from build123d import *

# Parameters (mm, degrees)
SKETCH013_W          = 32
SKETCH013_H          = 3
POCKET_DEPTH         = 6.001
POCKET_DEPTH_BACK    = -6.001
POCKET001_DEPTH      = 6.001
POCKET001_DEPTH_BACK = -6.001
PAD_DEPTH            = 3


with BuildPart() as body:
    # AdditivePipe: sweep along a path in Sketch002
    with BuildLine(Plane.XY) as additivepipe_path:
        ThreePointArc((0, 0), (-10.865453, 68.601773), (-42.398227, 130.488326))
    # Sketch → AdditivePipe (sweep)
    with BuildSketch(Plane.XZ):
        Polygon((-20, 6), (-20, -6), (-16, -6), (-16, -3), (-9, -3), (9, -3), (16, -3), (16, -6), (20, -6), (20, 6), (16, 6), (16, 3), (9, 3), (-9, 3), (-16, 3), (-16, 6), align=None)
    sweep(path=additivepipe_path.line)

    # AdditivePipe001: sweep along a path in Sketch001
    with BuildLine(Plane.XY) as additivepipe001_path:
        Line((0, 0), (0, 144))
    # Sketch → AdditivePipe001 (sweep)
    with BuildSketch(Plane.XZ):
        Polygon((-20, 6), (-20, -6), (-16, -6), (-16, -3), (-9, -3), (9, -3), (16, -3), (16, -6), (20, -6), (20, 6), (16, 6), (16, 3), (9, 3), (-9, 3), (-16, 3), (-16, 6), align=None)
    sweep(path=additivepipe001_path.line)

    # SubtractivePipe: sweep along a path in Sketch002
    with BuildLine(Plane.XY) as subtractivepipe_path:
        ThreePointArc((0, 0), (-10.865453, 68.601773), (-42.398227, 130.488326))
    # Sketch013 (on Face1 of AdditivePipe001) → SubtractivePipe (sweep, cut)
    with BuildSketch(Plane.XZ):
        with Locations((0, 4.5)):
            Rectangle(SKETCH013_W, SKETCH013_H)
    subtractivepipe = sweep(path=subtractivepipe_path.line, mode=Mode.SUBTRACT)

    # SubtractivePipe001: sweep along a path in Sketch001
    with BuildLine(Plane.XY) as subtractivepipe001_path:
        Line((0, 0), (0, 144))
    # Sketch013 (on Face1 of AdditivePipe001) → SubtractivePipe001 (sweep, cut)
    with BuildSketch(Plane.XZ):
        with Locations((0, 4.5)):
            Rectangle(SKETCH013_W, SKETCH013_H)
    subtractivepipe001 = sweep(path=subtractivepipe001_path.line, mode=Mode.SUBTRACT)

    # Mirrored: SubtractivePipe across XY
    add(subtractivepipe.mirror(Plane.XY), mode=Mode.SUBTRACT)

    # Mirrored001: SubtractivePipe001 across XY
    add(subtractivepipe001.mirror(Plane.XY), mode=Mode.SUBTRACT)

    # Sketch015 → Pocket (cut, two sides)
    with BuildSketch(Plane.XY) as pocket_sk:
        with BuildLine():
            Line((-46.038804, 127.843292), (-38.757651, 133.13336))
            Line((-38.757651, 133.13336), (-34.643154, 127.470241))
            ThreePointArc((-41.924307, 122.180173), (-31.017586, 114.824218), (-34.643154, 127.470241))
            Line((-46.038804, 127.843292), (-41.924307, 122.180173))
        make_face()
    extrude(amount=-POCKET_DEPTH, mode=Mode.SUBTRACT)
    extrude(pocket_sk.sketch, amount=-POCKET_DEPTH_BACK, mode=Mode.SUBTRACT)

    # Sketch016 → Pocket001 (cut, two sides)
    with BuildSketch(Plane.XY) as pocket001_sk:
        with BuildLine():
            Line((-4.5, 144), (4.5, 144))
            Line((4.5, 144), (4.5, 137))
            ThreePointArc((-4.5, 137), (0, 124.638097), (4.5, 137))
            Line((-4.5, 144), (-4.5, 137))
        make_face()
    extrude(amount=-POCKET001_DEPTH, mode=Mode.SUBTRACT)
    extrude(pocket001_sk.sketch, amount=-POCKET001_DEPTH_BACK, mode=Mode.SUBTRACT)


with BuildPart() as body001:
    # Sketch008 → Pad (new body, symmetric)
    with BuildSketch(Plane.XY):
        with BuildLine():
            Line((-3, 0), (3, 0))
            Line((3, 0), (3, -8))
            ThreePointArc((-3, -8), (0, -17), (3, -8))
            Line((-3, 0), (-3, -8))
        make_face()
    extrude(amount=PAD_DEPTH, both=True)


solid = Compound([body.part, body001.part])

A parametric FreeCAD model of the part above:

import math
import FreeCAD as App
import Part
import Sketcher
from FreeCAD import Vector
Q = App.Units.Quantity

doc = App.newDocument("Part")
params = doc.addObject("Spreadsheet::Sheet", "Params")
for row, (alias, value) in enumerate([
    ("sketch1_width", "4 mm"),
    ("sketch1_width2", "32 mm"),
    ("sketch1_height", "12 mm"),
    ("sketch1_height2", "3 mm"),
    ("sketch3_width", "4 mm"),
    ("sketch3_width2", "32 mm"),
    ("sketch3_height", "12 mm"),
    ("sketch3_height2", "3 mm"),
    ("sketch4_height", "144 mm"),
    ("sketch5_width", "32 mm"),
    ("sketch5_height", "3 mm"),
    ("sketch7_width", "32 mm"),
    ("sketch7_height", "3 mm"),
    ("sketch8_height", "144 mm"),
    ("sketch9_radius", "7 mm"),
    ("sketch9_length", "9 mm"),
    ("sketch9_length2", "7 mm"),
    ("sketch10_radius", "7 mm"),
    ("sketch10_width", "9 mm"),
    ("sketch10_height", "7 mm"),
    ("sketch11_radius", "5 mm"),
    ("sketch11_width", "6 mm"),
    ("sketch11_height", "8 mm"),
    ("pad1_length", "6 mm"),
], start=1):
    params.set(f"A{row}", alias)
    params.set(f"B{row}", "=" + value)
    params.setAlias(f"B{row}", alias)

body = doc.addObject("PartDesign::Body", "Body")

sketch1 = doc.addObject("Sketcher::SketchObject", "Sketch")
body.addObject(sketch1)
sketch1.AttachmentSupport = (doc.XZ_Plane, [""])
sketch1.MapMode = "FlatFace"
sketch1.addGeometry([
    Part.LineSegment(Vector(-20, 6, 0), Vector(-20, -6, 0)),
    Part.LineSegment(Vector(-20, -6, 0), Vector(-16, -6, 0)),
    Part.LineSegment(Vector(-16, -6, 0), Vector(-16, -3, 0)),
    Part.LineSegment(Vector(-16, -3, 0), Vector(16, -3, 0)),
    Part.LineSegment(Vector(16, -3, 0), Vector(16, -6, 0)),
    Part.LineSegment(Vector(16, -6, 0), Vector(20, -6, 0)),
    Part.LineSegment(Vector(20, -6, 0), Vector(20, 6, 0)),
    Part.LineSegment(Vector(20, 6, 0), Vector(16, 6, 0)),
    Part.LineSegment(Vector(16, 6, 0), Vector(16, 3, 0)),
    Part.LineSegment(Vector(16, 3, 0), Vector(-16, 3, 0)),
    Part.LineSegment(Vector(-16, 3, 0), Vector(-16, 6, 0)),
    Part.LineSegment(Vector(-16, 6, 0), Vector(-20, 6, 0)),
], False)
sketch1.addConstraint([
    Sketcher.Constraint("Coincident", 0, 2, 1, 1),
    Sketcher.Constraint("Coincident", 1, 2, 2, 1),
    Sketcher.Constraint("Coincident", 2, 2, 3, 1),
    Sketcher.Constraint("Coincident", 3, 2, 4, 1),
    Sketcher.Constraint("Coincident", 4, 2, 5, 1),
    Sketcher.Constraint("Coincident", 5, 2, 6, 1),
    Sketcher.Constraint("Coincident", 6, 2, 7, 1),
    Sketcher.Constraint("Coincident", 7, 2, 8, 1),
    Sketcher.Constraint("Coincident", 8, 2, 9, 1),
    Sketcher.Constraint("Coincident", 9, 2, 10, 1),
    Sketcher.Constraint("Coincident", 10, 2, 11, 1),
    Sketcher.Constraint("Coincident", 11, 2, 0, 1),
    Sketcher.Constraint("Vertical", 0),
    Sketcher.Constraint("Horizontal", 1),
    Sketcher.Constraint("Vertical", 2),
    Sketcher.Constraint("Horizontal", 3),
    Sketcher.Constraint("Vertical", 4),
    Sketcher.Constraint("Horizontal", 5),
    Sketcher.Constraint("Vertical", 6),
    Sketcher.Constraint("Horizontal", 7),
    Sketcher.Constraint("Vertical", 8),
    Sketcher.Constraint("Horizontal", 9),
    Sketcher.Constraint("Vertical", 10),
    Sketcher.Constraint("Horizontal", 11),
    Sketcher.Constraint("Symmetric", 0, 2, 6, 2, -1, 1),
    Sketcher.Constraint("Symmetric", 2, 2, 8, 2, -1, 1),
    Sketcher.Constraint("Symmetric", 4, 2, 10, 2, -1, 1),
    Sketcher.Constraint("Symmetric", 1, 2, 4, 2, -2),
    Sketcher.Constraint("DistanceX", 1, 1, 1, 2, 4.0),
    Sketcher.Constraint("DistanceX", 3, 1, 3, 2, 32.0),
    Sketcher.Constraint("DistanceY", 0, 2, 0, 1, 12.0),
    Sketcher.Constraint("DistanceY", 2, 1, 2, 2, 3.0),
])
sketch1.setExpression("Constraints[28]", "Params.sketch1_width")
sketch1.setExpression("Constraints[29]", "Params.sketch1_width2")
sketch1.setExpression("Constraints[30]", "Params.sketch1_height")
sketch1.setExpression("Constraints[31]", "Params.sketch1_height2")

sketch2 = doc.addObject("Sketcher::SketchObject", "Sketch001")
body.addObject(sketch2)
sketch2.AttachmentSupport = (doc.XY_Plane, [""])
sketch2.MapMode = "FlatFace"
sketch2.addGeometry(Part.ArcOfCircle(Part.Circle(Vector(-222, 0, 0), Vector(0, 0, 1), 222), math.radians(0), math.radians(36)), False)
sketch2.addConstraint([
    Sketcher.Constraint("Coincident", 0, 1, -1, 1),
    Sketcher.Constraint("Radius", 0, 221.999993),
    Sketcher.Constraint("DistanceX", 0, 2, -1, 1, 42.398227),
    Sketcher.Constraint("DistanceY", -1, 1, 0, 2, 130.488326),
])
doc.recompute()

additivepipe = doc.addObject("PartDesign::AdditivePipe", "AdditivePipe")
body.addObject(additivepipe)
additivepipe.Profile = sketch1
additivepipe.Spine = (sketch2, ["Edge1"])

sketch3 = doc.addObject("Sketcher::SketchObject", "Sketch002")
body.addObject(sketch3)
sketch3.AttachmentSupport = (doc.XZ_Plane, [""])
sketch3.MapMode = "FlatFace"
sketch3.addGeometry([
    Part.LineSegment(Vector(-20, 6, 0), Vector(-20, -6, 0)),
    Part.LineSegment(Vector(-20, -6, 0), Vector(-16, -6, 0)),
    Part.LineSegment(Vector(-16, -6, 0), Vector(-16, -3, 0)),
    Part.LineSegment(Vector(-16, -3, 0), Vector(16, -3, 0)),
    Part.LineSegment(Vector(16, -3, 0), Vector(16, -6, 0)),
    Part.LineSegment(Vector(16, -6, 0), Vector(20, -6, 0)),
    Part.LineSegment(Vector(20, -6, 0), Vector(20, 6, 0)),
    Part.LineSegment(Vector(20, 6, 0), Vector(16, 6, 0)),
    Part.LineSegment(Vector(16, 6, 0), Vector(16, 3, 0)),
    Part.LineSegment(Vector(16, 3, 0), Vector(-16, 3, 0)),
    Part.LineSegment(Vector(-16, 3, 0), Vector(-16, 6, 0)),
    Part.LineSegment(Vector(-16, 6, 0), Vector(-20, 6, 0)),
], False)
sketch3.addConstraint([
    Sketcher.Constraint("Coincident", 0, 2, 1, 1),
    Sketcher.Constraint("Coincident", 1, 2, 2, 1),
    Sketcher.Constraint("Coincident", 2, 2, 3, 1),
    Sketcher.Constraint("Coincident", 3, 2, 4, 1),
    Sketcher.Constraint("Coincident", 4, 2, 5, 1),
    Sketcher.Constraint("Coincident", 5, 2, 6, 1),
    Sketcher.Constraint("Coincident", 6, 2, 7, 1),
    Sketcher.Constraint("Coincident", 7, 2, 8, 1),
    Sketcher.Constraint("Coincident", 8, 2, 9, 1),
    Sketcher.Constraint("Coincident", 9, 2, 10, 1),
    Sketcher.Constraint("Coincident", 10, 2, 11, 1),
    Sketcher.Constraint("Coincident", 11, 2, 0, 1),
    Sketcher.Constraint("Vertical", 0),
    Sketcher.Constraint("Horizontal", 1),
    Sketcher.Constraint("Vertical", 2),
    Sketcher.Constraint("Horizontal", 3),
    Sketcher.Constraint("Vertical", 4),
    Sketcher.Constraint("Horizontal", 5),
    Sketcher.Constraint("Vertical", 6),
    Sketcher.Constraint("Horizontal", 7),
    Sketcher.Constraint("Vertical", 8),
    Sketcher.Constraint("Horizontal", 9),
    Sketcher.Constraint("Vertical", 10),
    Sketcher.Constraint("Horizontal", 11),
    Sketcher.Constraint("Symmetric", 0, 2, 6, 2, -1, 1),
    Sketcher.Constraint("Symmetric", 2, 2, 8, 2, -1, 1),
    Sketcher.Constraint("Symmetric", 4, 2, 10, 2, -1, 1),
    Sketcher.Constraint("Symmetric", 1, 2, 4, 2, -2),
    Sketcher.Constraint("DistanceX", 1, 1, 1, 2, 4.0),
    Sketcher.Constraint("DistanceX", 3, 1, 3, 2, 32.0),
    Sketcher.Constraint("DistanceY", 0, 2, 0, 1, 12.0),
    Sketcher.Constraint("DistanceY", 2, 1, 2, 2, 3.0),
])
sketch3.setExpression("Constraints[28]", "Params.sketch3_width")
sketch3.setExpression("Constraints[29]", "Params.sketch3_width2")
sketch3.setExpression("Constraints[30]", "Params.sketch3_height")
sketch3.setExpression("Constraints[31]", "Params.sketch3_height2")

sketch4 = doc.addObject("Sketcher::SketchObject", "Sketch003")
body.addObject(sketch4)
sketch4.AttachmentSupport = (doc.XY_Plane, [""])
sketch4.MapMode = "FlatFace"
sketch4.addGeometry(Part.LineSegment(Vector(0, 0, 0), Vector(0, 144, 0)), False)
sketch4.addConstraint([
    Sketcher.Constraint("Vertical", 0),
    Sketcher.Constraint("Coincident", 0, 1, -1, 1),
    Sketcher.Constraint("DistanceY", 0, 1, 0, 2, 144.0),
])
sketch4.setExpression("Constraints[2]", "Params.sketch4_height")
doc.recompute()

additivepipe2 = doc.addObject("PartDesign::AdditivePipe", "AdditivePipe001")
body.addObject(additivepipe2)
additivepipe2.Profile = sketch3
additivepipe2.Spine = (sketch4, ["Edge1"])

sketch5 = doc.addObject("Sketcher::SketchObject", "Sketch004")
body.addObject(sketch5)
sketch5.AttachmentSupport = (doc.XZ_Plane, [""])
sketch5.MapMode = "FlatFace"
sketch5.addGeometry([
    Part.LineSegment(Vector(-16, 6, 0), Vector(-16, 3, 0)),
    Part.LineSegment(Vector(-16, 3, 0), Vector(16, 3, 0)),
    Part.LineSegment(Vector(16, 3, 0), Vector(16, 6, 0)),
    Part.LineSegment(Vector(16, 6, 0), Vector(-16, 6, 0)),
], False)
sketch5.addConstraint([
    Sketcher.Constraint("Coincident", 0, 2, 1, 1),
    Sketcher.Constraint("Coincident", 1, 2, 2, 1),
    Sketcher.Constraint("Coincident", 2, 2, 3, 1),
    Sketcher.Constraint("Coincident", 3, 2, 0, 1),
    Sketcher.Constraint("Vertical", 0),
    Sketcher.Constraint("Horizontal", 1),
    Sketcher.Constraint("Vertical", 2),
    Sketcher.Constraint("Horizontal", 3),
    Sketcher.Constraint("DistanceX", 1, 1, 1, 2, 32.0),
    Sketcher.Constraint("DistanceY", 0, 2, 0, 1, 3.0),
    Sketcher.Constraint("DistanceX", 0, 2, -1, 1, 16.0),
    Sketcher.Constraint("DistanceY", -1, 1, 0, 2, 3.0),
])
sketch5.setExpression("Constraints[8]", "Params.sketch5_width")
sketch5.setExpression("Constraints[9]", "Params.sketch5_height")

sketch6 = doc.addObject("Sketcher::SketchObject", "Sketch005")
body.addObject(sketch6)
sketch6.AttachmentSupport = (doc.XY_Plane, [""])
sketch6.MapMode = "FlatFace"
sketch6.addGeometry(Part.ArcOfCircle(Part.Circle(Vector(-222, 0, 0), Vector(0, 0, 1), 222), math.radians(0), math.radians(36)), False)
sketch6.addConstraint([
    Sketcher.Constraint("Coincident", 0, 1, -1, 1),
    Sketcher.Constraint("Radius", 0, 221.999993),
    Sketcher.Constraint("DistanceX", 0, 2, -1, 1, 42.398227),
    Sketcher.Constraint("DistanceY", -1, 1, 0, 2, 130.488326),
])
doc.recompute()

subtractivepipe = doc.addObject("PartDesign::SubtractivePipe", "SubtractivePipe")
body.addObject(subtractivepipe)
subtractivepipe.Profile = sketch5
subtractivepipe.Spine = (sketch6, ["Edge1"])

sketch7 = doc.addObject("Sketcher::SketchObject", "Sketch006")
body.addObject(sketch7)
sketch7.AttachmentSupport = (doc.XZ_Plane, [""])
sketch7.MapMode = "FlatFace"
sketch7.addGeometry([
    Part.LineSegment(Vector(-16, 6, 0), Vector(-16, 3, 0)),
    Part.LineSegment(Vector(-16, 3, 0), Vector(16, 3, 0)),
    Part.LineSegment(Vector(16, 3, 0), Vector(16, 6, 0)),
    Part.LineSegment(Vector(16, 6, 0), Vector(-16, 6, 0)),
], False)
sketch7.addConstraint([
    Sketcher.Constraint("Coincident", 0, 2, 1, 1),
    Sketcher.Constraint("Coincident", 1, 2, 2, 1),
    Sketcher.Constraint("Coincident", 2, 2, 3, 1),
    Sketcher.Constraint("Coincident", 3, 2, 0, 1),
    Sketcher.Constraint("Vertical", 0),
    Sketcher.Constraint("Horizontal", 1),
    Sketcher.Constraint("Vertical", 2),
    Sketcher.Constraint("Horizontal", 3),
    Sketcher.Constraint("DistanceX", 1, 1, 1, 2, 32.0),
    Sketcher.Constraint("DistanceY", 0, 2, 0, 1, 3.0),
    Sketcher.Constraint("DistanceX", 0, 2, -1, 1, 16.0),
    Sketcher.Constraint("DistanceY", -1, 1, 0, 2, 3.0),
])
sketch7.setExpression("Constraints[8]", "Params.sketch7_width")
sketch7.setExpression("Constraints[9]", "Params.sketch7_height")

sketch8 = doc.addObject("Sketcher::SketchObject", "Sketch007")
body.addObject(sketch8)
sketch8.AttachmentSupport = (doc.XY_Plane, [""])
sketch8.MapMode = "FlatFace"
sketch8.addGeometry(Part.LineSegment(Vector(0, 0, 0), Vector(0, 144, 0)), False)
sketch8.addConstraint([
    Sketcher.Constraint("Vertical", 0),
    Sketcher.Constraint("Coincident", 0, 1, -1, 1),
    Sketcher.Constraint("DistanceY", 0, 1, 0, 2, 144.0),
])
sketch8.setExpression("Constraints[2]", "Params.sketch8_height")
doc.recompute()

subtractivepipe2 = doc.addObject("PartDesign::SubtractivePipe", "SubtractivePipe001")
body.addObject(subtractivepipe2)
subtractivepipe2.Profile = sketch7
subtractivepipe2.Spine = (sketch8, ["Edge1"])
doc.recompute()

mirrored = doc.addObject("PartDesign::Mirrored", "Mirrored")
body.addObject(mirrored)
mirrored.Originals = [subtractivepipe]
mirrored.MirrorPlane = (doc.XY_Plane, [""])
body.Tip = mirrored
doc.recompute()

mirrored2 = doc.addObject("PartDesign::Mirrored", "Mirrored001")
body.addObject(mirrored2)
mirrored2.Originals = [subtractivepipe2]
mirrored2.MirrorPlane = (doc.XY_Plane, [""])
body.Tip = mirrored2

sketch9 = doc.addObject("Sketcher::SketchObject", "Sketch008")
body.addObject(sketch9)
sketch9.AttachmentSupport = (doc.XY_Plane, [""])
sketch9.MapMode = "FlatFace"
sketch9.addGeometry([
    Part.LineSegment(Vector(-39, 133, 0), Vector(-46, 128, 0)),
    Part.LineSegment(Vector(-46, 128, 0), Vector(-42, 122, 0)),
    Part.ArcOfCircle(Part.Circle(Vector(-35, 120, 0), Vector(0, 0, 1), 7), math.radians(166), math.radians(446)),
    Part.LineSegment(Vector(-35, 127, 0), Vector(-39, 133, 0)),
], False)
sketch9.addConstraint([
    Sketcher.Constraint("Coincident", 0, 2, 1, 1),
    Sketcher.Constraint("Coincident", 1, 2, 2, 1),
    Sketcher.Constraint("Coincident", 2, 2, 3, 1),
    Sketcher.Constraint("Coincident", 3, 2, 0, 1),
    Sketcher.Constraint("Perpendicular", 0, 1),
    Sketcher.Constraint("Parallel", 1, 3),
    Sketcher.Constraint("Equal", 1, 3),
    Sketcher.Constraint("Radius", 2, 7.0),
    Sketcher.Constraint("Angle", 0, Q("-143.999996 deg")),
    Sketcher.Constraint("Distance", 0, 9.0),
    Sketcher.Constraint("Distance", 1, 7.0),
    Sketcher.Constraint("DistanceY", -1, 1, 2, 2, 127.470241),
    Sketcher.Constraint("DistanceX", 3, 2, -1, 1, 38.757651),
])
sketch9.setExpression("Constraints[7]", "Params.sketch9_radius")
sketch9.setExpression("Constraints[9]", "Params.sketch9_length")
sketch9.setExpression("Constraints[10]", "Params.sketch9_length2")
pocket1 = doc.addObject("PartDesign::Pocket", "Pocket")
body.addObject(pocket1)
pocket1.Profile = sketch9
pocket1.Type = "ThroughAll"
pocket1.Midplane = True

sketch10 = doc.addObject("Sketcher::SketchObject", "Sketch009")
body.addObject(sketch10)
sketch10.AttachmentSupport = (doc.XY_Plane, [""])
sketch10.MapMode = "FlatFace"
sketch10.addGeometry([
    Part.LineSegment(Vector(4, 144, 0), Vector(-4, 144, 0)),
    Part.LineSegment(Vector(-4, 144, 0), Vector(-4, 137, 0)),
    Part.ArcOfCircle(Part.Circle(Vector(0, 132, 0), Vector(0, 0, 1), 7), math.radians(130), math.radians(410)),
    Part.LineSegment(Vector(4, 137, 0), Vector(4, 144, 0)),
], False)
sketch10.addConstraint([
    Sketcher.Constraint("Coincident", 0, 2, 1, 1),
    Sketcher.Constraint("Coincident", 1, 2, 2, 1),
    Sketcher.Constraint("Coincident", 2, 2, 3, 1),
    Sketcher.Constraint("Coincident", 3, 2, 0, 1),
    Sketcher.Constraint("Horizontal", 0),
    Sketcher.Constraint("Vertical", 1),
    Sketcher.Constraint("Vertical", 3),
    Sketcher.Constraint("Symmetric", 1, 2, 2, 2, -2),
    Sketcher.Constraint("Radius", 2, 7.0),
    Sketcher.Constraint("DistanceX", 0, 2, 0, 1, 9.0),
    Sketcher.Constraint("DistanceY", 1, 2, 1, 1, 7.0),
    Sketcher.Constraint("DistanceY", -1, 1, 0, 2, 144.0),
])
sketch10.setExpression("Constraints[8]", "Params.sketch10_radius")
sketch10.setExpression("Constraints[9]", "Params.sketch10_width")
sketch10.setExpression("Constraints[10]", "Params.sketch10_height")
pocket2 = doc.addObject("PartDesign::Pocket", "Pocket001")
body.addObject(pocket2)
pocket2.Profile = sketch10
pocket2.Type = "ThroughAll"
pocket2.Midplane = True
body2 = doc.addObject("PartDesign::Body", "Body001")

sketch11 = doc.addObject("Sketcher::SketchObject", "Sketch010")
body2.addObject(sketch11)
sketch11.AttachmentSupport = (doc.getObject("XY_Plane001"), [""])
sketch11.MapMode = "FlatFace"
sketch11.addGeometry([
    Part.LineSegment(Vector(3, 0, 0), Vector(-3, 0, 0)),
    Part.LineSegment(Vector(-3, 0, 0), Vector(-3, -8, 0)),
    Part.ArcOfCircle(Part.Circle(Vector(0, -12, 0), Vector(0, 0, 1), 5), math.radians(127), math.radians(413)),
    Part.LineSegment(Vector(3, -8, 0), Vector(3, 0, 0)),
], False)
sketch11.addConstraint([
    Sketcher.Constraint("Coincident", 0, 2, 1, 1),
    Sketcher.Constraint("Coincident", 1, 2, 2, 1),
    Sketcher.Constraint("Coincident", 2, 2, 3, 1),
    Sketcher.Constraint("Coincident", 3, 2, 0, 1),
    Sketcher.Constraint("Horizontal", 0),
    Sketcher.Constraint("Vertical", 1),
    Sketcher.Constraint("Vertical", 3),
    Sketcher.Constraint("Symmetric", 0, 2, 3, 2, -1, 1),
    Sketcher.Constraint("PointOnObject", 2, 3, -2),
    Sketcher.Constraint("Radius", 2, 5.0),
    Sketcher.Constraint("DistanceX", 0, 2, 0, 1, 6.0),
    Sketcher.Constraint("DistanceY", 1, 2, 1, 1, 8.0),
])
sketch11.setExpression("Constraints[9]", "Params.sketch11_radius")
sketch11.setExpression("Constraints[10]", "Params.sketch11_width")
sketch11.setExpression("Constraints[11]", "Params.sketch11_height")
pad1 = doc.addObject("PartDesign::Pad", "Pad")
body2.addObject(pad1)
pad1.Profile = sketch11
pad1.setExpression("Length", "Params.pad1_length")
pad1.Midplane = True

doc.recompute()
